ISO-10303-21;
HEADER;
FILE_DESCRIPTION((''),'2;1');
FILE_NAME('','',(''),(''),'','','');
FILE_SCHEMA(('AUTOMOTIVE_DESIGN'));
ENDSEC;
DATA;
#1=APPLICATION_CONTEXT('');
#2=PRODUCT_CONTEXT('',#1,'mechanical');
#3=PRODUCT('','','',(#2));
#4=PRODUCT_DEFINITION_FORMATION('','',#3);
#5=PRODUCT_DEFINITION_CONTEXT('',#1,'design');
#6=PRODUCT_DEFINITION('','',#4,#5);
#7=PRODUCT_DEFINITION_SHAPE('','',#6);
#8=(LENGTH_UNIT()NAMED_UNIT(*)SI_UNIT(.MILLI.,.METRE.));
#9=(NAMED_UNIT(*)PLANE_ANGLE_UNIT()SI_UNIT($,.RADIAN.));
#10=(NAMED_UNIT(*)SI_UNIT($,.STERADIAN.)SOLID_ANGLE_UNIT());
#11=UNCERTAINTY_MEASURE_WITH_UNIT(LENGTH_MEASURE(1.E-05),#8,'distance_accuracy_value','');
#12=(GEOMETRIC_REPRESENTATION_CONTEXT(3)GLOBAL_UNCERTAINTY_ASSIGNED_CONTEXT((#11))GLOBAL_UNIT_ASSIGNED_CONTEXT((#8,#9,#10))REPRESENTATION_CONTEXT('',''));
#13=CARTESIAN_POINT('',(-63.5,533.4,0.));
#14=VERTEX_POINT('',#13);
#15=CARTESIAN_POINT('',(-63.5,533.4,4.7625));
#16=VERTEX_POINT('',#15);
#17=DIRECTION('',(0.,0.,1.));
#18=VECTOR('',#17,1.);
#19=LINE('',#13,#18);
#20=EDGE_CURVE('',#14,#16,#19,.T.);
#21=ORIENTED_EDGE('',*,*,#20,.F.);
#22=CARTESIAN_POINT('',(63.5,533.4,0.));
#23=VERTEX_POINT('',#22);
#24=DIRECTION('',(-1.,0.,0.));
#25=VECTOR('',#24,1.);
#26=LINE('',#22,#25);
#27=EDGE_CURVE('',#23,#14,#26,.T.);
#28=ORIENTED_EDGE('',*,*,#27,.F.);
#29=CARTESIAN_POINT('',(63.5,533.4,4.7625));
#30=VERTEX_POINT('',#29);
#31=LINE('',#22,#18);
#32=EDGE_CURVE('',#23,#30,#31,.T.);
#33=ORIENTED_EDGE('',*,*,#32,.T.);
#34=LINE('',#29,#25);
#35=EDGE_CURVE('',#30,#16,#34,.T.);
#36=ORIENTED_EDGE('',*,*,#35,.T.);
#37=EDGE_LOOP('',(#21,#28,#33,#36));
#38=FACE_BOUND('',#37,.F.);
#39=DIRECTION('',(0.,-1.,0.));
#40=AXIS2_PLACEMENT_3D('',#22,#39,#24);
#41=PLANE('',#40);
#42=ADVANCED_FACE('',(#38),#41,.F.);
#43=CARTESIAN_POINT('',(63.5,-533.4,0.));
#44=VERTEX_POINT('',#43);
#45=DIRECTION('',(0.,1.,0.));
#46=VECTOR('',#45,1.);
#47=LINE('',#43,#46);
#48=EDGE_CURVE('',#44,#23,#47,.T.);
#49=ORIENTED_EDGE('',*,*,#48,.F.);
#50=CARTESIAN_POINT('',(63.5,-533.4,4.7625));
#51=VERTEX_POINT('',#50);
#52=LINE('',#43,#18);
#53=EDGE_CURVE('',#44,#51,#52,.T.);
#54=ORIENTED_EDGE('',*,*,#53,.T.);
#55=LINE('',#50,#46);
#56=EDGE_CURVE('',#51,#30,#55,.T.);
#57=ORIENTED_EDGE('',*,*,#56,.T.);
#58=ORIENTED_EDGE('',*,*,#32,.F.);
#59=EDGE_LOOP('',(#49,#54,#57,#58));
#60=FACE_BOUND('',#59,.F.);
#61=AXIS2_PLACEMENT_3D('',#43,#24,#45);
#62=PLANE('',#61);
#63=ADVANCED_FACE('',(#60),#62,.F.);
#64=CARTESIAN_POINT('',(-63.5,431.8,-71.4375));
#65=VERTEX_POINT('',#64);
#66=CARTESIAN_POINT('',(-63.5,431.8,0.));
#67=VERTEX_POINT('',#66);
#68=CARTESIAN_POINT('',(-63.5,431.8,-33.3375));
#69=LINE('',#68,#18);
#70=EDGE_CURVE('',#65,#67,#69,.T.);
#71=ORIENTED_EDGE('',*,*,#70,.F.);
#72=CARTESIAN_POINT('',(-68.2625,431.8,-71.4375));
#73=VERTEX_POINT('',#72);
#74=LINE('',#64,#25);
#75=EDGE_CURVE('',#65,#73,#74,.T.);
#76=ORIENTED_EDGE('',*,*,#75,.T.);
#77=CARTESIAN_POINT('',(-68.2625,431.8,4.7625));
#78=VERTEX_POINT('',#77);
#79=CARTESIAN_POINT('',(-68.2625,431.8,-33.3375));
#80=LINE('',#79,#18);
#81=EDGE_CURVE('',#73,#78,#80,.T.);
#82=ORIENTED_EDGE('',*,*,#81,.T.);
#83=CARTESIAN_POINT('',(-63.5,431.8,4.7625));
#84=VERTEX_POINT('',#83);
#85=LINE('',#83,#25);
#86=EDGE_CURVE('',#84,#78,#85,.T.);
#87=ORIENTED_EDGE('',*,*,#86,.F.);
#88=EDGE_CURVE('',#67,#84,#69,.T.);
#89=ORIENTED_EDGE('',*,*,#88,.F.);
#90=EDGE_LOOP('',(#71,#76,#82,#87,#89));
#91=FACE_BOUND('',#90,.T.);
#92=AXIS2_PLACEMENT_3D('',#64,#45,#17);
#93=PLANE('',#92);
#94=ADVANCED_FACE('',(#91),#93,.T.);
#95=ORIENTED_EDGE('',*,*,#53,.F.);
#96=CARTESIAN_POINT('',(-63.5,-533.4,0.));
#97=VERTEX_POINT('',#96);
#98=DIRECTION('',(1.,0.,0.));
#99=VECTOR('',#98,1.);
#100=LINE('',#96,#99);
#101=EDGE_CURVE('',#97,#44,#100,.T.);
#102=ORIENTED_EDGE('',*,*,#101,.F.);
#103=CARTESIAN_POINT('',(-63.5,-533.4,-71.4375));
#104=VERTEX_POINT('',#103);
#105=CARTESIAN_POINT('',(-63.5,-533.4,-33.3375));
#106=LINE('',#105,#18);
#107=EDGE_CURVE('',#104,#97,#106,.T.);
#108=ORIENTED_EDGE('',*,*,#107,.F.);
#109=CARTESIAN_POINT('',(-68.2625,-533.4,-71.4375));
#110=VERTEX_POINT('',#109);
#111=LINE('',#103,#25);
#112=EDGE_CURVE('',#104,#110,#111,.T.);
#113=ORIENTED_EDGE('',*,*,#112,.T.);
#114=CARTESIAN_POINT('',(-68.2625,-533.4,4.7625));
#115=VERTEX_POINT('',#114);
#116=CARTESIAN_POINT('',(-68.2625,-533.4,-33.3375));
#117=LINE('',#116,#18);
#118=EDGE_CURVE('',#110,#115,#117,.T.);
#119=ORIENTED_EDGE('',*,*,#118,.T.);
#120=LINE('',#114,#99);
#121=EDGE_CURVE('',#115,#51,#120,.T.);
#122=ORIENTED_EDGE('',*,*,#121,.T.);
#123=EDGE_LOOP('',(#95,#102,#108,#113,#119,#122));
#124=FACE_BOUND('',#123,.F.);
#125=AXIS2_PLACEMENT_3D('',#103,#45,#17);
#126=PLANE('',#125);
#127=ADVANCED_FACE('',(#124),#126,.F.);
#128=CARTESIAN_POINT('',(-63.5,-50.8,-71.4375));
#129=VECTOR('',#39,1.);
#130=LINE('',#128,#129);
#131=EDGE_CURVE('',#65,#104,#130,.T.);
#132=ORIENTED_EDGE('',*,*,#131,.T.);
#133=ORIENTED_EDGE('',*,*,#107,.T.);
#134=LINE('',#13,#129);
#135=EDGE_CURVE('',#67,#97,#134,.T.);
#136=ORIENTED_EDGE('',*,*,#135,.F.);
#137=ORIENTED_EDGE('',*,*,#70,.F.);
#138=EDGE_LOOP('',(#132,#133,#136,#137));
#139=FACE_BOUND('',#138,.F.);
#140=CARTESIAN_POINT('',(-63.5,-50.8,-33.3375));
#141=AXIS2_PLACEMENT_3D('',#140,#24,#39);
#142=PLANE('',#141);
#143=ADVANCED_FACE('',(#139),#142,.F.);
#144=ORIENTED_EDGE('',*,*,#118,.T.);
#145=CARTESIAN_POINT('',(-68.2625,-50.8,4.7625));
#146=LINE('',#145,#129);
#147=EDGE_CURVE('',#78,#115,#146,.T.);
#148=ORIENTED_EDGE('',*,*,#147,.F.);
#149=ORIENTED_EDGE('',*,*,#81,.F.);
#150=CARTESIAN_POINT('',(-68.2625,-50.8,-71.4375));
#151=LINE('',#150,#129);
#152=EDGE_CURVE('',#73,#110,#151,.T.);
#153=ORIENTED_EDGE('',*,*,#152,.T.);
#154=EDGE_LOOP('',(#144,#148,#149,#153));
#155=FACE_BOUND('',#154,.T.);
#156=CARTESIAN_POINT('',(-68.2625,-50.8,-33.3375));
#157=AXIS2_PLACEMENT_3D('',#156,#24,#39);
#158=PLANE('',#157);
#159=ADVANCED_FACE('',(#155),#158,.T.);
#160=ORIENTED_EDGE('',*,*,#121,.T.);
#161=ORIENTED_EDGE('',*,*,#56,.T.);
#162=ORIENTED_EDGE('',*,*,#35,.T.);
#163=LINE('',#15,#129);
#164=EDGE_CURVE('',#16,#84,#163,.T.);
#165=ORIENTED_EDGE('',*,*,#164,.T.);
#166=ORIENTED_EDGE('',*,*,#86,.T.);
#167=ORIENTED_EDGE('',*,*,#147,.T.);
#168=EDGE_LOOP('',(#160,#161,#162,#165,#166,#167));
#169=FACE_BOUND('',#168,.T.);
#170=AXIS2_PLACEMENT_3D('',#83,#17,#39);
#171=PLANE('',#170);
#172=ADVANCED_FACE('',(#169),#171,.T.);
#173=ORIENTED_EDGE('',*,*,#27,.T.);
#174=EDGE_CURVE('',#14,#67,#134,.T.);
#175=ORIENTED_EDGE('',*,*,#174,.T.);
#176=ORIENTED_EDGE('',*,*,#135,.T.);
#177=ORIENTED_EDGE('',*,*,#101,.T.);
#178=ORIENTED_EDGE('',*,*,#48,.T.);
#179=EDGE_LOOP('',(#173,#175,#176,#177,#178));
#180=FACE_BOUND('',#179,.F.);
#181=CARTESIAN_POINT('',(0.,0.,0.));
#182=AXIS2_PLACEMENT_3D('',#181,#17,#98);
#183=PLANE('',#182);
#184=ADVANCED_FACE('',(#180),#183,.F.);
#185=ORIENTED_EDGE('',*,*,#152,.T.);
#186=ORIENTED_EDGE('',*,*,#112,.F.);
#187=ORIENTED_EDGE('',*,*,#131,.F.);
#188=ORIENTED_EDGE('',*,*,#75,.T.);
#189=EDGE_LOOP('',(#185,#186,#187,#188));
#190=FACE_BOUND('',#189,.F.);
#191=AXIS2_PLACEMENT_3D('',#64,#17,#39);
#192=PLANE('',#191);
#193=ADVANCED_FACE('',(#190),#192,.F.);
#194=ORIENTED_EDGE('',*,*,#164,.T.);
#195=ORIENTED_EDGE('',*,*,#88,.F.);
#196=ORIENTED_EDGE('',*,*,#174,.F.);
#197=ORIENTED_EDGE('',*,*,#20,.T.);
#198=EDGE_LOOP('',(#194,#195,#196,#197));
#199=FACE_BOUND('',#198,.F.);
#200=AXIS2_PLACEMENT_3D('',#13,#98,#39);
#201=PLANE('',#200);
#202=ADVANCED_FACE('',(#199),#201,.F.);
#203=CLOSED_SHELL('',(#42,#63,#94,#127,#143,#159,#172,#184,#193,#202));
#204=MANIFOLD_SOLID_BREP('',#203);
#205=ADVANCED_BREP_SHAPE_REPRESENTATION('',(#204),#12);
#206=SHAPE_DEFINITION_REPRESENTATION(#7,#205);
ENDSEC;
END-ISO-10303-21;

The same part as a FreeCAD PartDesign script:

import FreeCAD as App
import Part
import Sketcher

V = App.Vector
Q = App.Units.Quantity

doc = App.newDocument("Part")
body = doc.addObject("PartDesign::Body", "Body")

sketch1 = body.newObject("Sketcher::SketchObject", "Sketch")
sketch1.AttachmentSupport = (doc.getObject("XY_Plane"), [""])
sketch1.MapMode = "FlatFace"
sketch1.addGeometry([
    Part.LineSegment(V(64, 533, 0), V(-64, 533, 0)),
    Part.LineSegment(V(-64, 533, 0), V(-64, -533, 0)),
    Part.LineSegment(V(-64, -533, 0), V(64, -533, 0)),
    Part.LineSegment(V(64, -533, 0), V(64, 533, 0)),
], False)
sketch1.addConstraint([
    Sketcher.Constraint("Coincident", 0, 2, 1, 1),
    Sketcher.Constraint("Coincident", 1, 2, 2, 1),
    Sketcher.Constraint("Coincident", 2, 2, 3, 1),
    Sketcher.Constraint("Coincident", 3, 2, 0, 1),
    Sketcher.Constraint("Horizontal", 0),
    Sketcher.Constraint("Vertical", 1),
    Sketcher.Constraint("Horizontal", 2),
    Sketcher.Constraint("Vertical", 3),
    Sketcher.Constraint("Symmetric", 0, 2, 2, 2, -1, 1),
    Sketcher.Constraint("DistanceX", 0, 2, 0, 1, Q("5 in")),
    Sketcher.Constraint("DistanceY", 1, 2, 1, 1, Q("42 in")),
])
pad1 = body.newObject("PartDesign::Pad", "Pad")
pad1.Profile = sketch1
pad1.Length = Q("0.1875 in")

sketch2 = body.newObject("Sketcher::SketchObject", "Sketch001")
sketch2.AttachmentSupport = (doc.getObject("YZ_Plane"), [""])
sketch2.MapMode = "FlatFace"
sketch2.AttachmentOffset = App.Placement(V(0, 0, -2.5 * 25.4), App.Rotation())
sketch2.addGeometry([
    Part.LineSegment(V(432, 5, 0), V(432, -71, 0)),
    Part.LineSegment(V(432, -71, 0), V(-533, -71, 0)),
    Part.LineSegment(V(-533, -71, 0), V(-533, 5, 0)),
    Part.LineSegment(V(-533, 5, 0), V(432, 5, 0)),
], False)
sketch2.addConstraint([
    Sketcher.Constraint("Coincident", 0, 2, 1, 1),
    Sketcher.Constraint("Coincident", 1, 2, 2, 1),
    Sketcher.Constraint("Coincident", 2, 2, 3, 1),
    Sketcher.Constraint("Coincident", 3, 2, 0, 1),
    Sketcher.Constraint("Vertical", 0),
    Sketcher.Constraint("Horizontal", 1),
    Sketcher.Constraint("Vertical", 2),
    Sketcher.Constraint("Horizontal", 3),
    Sketcher.Constraint("DistanceX", 1, 2, 1, 1, Q("38 in")),
    Sketcher.Constraint("DistanceY", 0, 2, 0, 1, Q("3 in")),
    Sketcher.Constraint("DistanceX", -1, 1, 0, 2, Q("17 in")),
    Sketcher.Constraint("DistanceY", 0, 2, -1, 1, Q("2.8125 in")),
])
pad2 = body.newObject("PartDesign::Pad", "Pad001")
pad2.Profile = sketch2
pad2.Length = Q("0.1875 in")
pad2.Reversed = True

doc.recompute()
